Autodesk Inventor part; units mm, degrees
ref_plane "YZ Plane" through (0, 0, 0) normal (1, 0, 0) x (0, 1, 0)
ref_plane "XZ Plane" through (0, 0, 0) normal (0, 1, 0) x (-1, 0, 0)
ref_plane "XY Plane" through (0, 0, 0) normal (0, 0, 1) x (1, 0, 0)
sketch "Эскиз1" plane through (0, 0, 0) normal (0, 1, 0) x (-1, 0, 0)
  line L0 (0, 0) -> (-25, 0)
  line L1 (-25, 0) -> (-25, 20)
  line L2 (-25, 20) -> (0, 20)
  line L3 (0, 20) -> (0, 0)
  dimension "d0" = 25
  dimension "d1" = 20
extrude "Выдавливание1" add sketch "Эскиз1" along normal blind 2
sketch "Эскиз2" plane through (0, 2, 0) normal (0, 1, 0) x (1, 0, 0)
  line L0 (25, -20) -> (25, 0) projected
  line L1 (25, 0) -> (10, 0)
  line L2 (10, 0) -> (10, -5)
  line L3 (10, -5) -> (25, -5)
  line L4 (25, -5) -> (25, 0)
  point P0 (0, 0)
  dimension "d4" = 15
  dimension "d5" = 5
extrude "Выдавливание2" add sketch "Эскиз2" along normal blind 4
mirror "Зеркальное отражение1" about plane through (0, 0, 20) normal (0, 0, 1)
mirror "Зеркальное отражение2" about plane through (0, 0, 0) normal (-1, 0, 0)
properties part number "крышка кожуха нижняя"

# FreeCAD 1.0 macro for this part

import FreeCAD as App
import Part
import Sketcher
from FreeCAD import Vector
Q = App.Units.Quantity


def add_polygon(sketch, points):
    """Adds a closed chain of lines whose ends are joined by coincident constraints."""
    first, n = sketch.GeometryCount, len(points)
    for a, b in zip(points, points[1:] + points[:1]):
        sketch.addGeometry(Part.LineSegment(App.Vector(*a, 0), App.Vector(*b, 0)), False)
    for i in range(n):
        sketch.addConstraint(Sketcher.Constraint("Coincident", first + i, 2, first + (i + 1) % n, 1))

doc = App.newDocument("Part")
body = doc.addObject("PartDesign::Body", "Body")

# Sketch on XZ plane
sketch1 = doc.addObject("Sketcher::SketchObject", "Sketch")
body.addObject(sketch1)
sketch1.AttachmentSupport = (doc.XZ_Plane, [""])
sketch1.MapMode = "FlatFace"
add_polygon(sketch1, [(25, 0), (0, 0), (0, 20), (25, 20)])  # lines 0-3
sketch1.addConstraint(Sketcher.Constraint("Horizontal", 0))
sketch1.addConstraint(Sketcher.Constraint("Vertical", 1))
sketch1.addConstraint(Sketcher.Constraint("Horizontal", 2))
sketch1.addConstraint(Sketcher.Constraint("Vertical", 3))
sketch1.addConstraint(Sketcher.Constraint("Coincident", 0, 2, -1, 1))
sketch1.addConstraint(Sketcher.Constraint("DistanceX", 0, 2, 0, 1, Q("25 mm")))
sketch1.addConstraint(Sketcher.Constraint("DistanceY", 1, 1, 1, 2, Q("20 mm")))
pad1 = doc.addObject("PartDesign::Pad", "Pad")
body.addObject(pad1)
pad1.Profile = sketch1
pad1.Length = 2
pad1.Reversed = True

# Sketch on XZ plane
sketch2 = doc.addObject("Sketcher::SketchObject", "Sketch001")
body.addObject(sketch2)
sketch2.AttachmentSupport = (doc.XZ_Plane, [""])
sketch2.MapMode = "FlatFace"
sketch2.AttachmentOffset = App.Placement(Vector(0, 0, -2), App.Rotation())
add_polygon(sketch2, [(10, 5), (25, 5), (25, 0), (10, 0)])  # lines 0-3
sketch2.addConstraint(Sketcher.Constraint("Horizontal", 0))
sketch2.addConstraint(Sketcher.Constraint("Vertical", 1))
sketch2.addConstraint(Sketcher.Constraint("Horizontal", 2))
sketch2.addConstraint(Sketcher.Constraint("Vertical", 3))
sketch2.addConstraint(Sketcher.Constraint("PointOnObject", 1, 2, -1))
sketch2.addConstraint(Sketcher.Constraint("DistanceX", 0, 1, 0, 2, Q("15 mm")))
sketch2.addConstraint(Sketcher.Constraint("DistanceY", 1, 2, 1, 1, Q("5 mm")))
sketch2.addConstraint(Sketcher.Constraint("DistanceX", -1, 1, 0, 2, Q("25 mm")))
pad2 = doc.addObject("PartDesign::Pad", "Pad001")
body.addObject(pad2)
pad2.Profile = sketch2
pad2.Length = 4
pad2.Reversed = True
doc.recompute()

datumplane = doc.addObject("PartDesign::Plane", "DatumPlane")
body.addObject(datumplane)
datumplane.AttachmentSupport = (doc.XY_Plane, [""])
datumplane.MapMode = "FlatFace"
datumplane.AttachmentOffset = App.Placement(Vector(0, 0, 20), App.Rotation())
mirrored = doc.addObject("PartDesign::Mirrored", "Mirrored")
body.addObject(mirrored)
mirrored.TransformMode = "Transform body"
mirrored.MirrorPlane = (datumplane, [""])
body.Tip = mirrored
doc.recompute()

mirrored2 = doc.addObject("PartDesign::Mirrored", "Mirrored001")
body.addObject(mirrored2)
mirrored2.TransformMode = "Transform body"
mirrored2.MirrorPlane = (doc.YZ_Plane, [""])
body.Tip = mirrored2

doc.recompute()
